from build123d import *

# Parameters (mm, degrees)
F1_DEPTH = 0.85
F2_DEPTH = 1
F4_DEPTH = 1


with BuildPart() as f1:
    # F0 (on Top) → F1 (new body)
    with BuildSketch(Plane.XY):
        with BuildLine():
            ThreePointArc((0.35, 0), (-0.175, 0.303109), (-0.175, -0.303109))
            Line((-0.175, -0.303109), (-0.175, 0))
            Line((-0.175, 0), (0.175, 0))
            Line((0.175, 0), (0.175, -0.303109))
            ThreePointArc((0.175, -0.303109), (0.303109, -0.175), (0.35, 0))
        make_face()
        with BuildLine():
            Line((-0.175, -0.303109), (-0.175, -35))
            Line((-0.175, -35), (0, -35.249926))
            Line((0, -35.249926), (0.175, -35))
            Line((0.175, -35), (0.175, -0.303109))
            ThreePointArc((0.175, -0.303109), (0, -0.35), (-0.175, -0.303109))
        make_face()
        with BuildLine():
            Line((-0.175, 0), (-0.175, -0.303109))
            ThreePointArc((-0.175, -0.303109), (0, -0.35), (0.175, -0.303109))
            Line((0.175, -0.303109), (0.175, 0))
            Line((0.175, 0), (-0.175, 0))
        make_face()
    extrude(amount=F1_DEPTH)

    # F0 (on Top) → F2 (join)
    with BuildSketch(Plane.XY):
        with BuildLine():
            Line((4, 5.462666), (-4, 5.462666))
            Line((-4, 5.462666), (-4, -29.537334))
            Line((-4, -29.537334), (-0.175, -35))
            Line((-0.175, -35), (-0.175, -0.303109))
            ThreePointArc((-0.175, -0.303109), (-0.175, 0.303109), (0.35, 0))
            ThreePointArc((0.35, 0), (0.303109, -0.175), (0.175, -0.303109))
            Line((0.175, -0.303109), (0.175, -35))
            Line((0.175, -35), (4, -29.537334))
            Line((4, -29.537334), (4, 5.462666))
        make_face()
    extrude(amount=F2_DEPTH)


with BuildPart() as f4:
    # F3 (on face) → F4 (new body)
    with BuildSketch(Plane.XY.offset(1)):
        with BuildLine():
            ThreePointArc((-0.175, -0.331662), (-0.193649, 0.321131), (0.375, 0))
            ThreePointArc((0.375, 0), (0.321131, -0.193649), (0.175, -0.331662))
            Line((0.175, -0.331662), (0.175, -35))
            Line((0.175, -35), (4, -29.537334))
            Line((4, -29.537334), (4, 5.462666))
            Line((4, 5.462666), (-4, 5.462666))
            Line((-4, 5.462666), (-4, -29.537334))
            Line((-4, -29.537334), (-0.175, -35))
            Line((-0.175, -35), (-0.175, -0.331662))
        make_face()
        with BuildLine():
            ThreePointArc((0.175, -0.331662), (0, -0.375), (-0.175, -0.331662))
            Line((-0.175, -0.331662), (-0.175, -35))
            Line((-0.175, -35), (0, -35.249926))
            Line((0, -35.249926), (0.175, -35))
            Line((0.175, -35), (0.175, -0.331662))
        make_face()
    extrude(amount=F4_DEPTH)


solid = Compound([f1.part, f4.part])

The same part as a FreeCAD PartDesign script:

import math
import FreeCAD as App
import Part
import Sketcher
from FreeCAD import Vector
Q = App.Units.Quantity


def add_polygon(sketch, points):
    """Adds a closed chain of lines whose ends are joined by coincident constraints."""
    first, n = sketch.GeometryCount, len(points)
    for a, b in zip(points, points[1:] + points[:1]):
        sketch.addGeometry(Part.LineSegment(App.Vector(*a, 0), App.Vector(*b, 0)), False)
    for i in range(n):
        sketch.addConstraint(Sketcher.Constraint("Coincident", first + i, 2, first + (i + 1) % n, 1))

doc = App.newDocument("Part")
body = doc.addObject("PartDesign::Body", "Body")

# Sketch on XY plane
sketch1 = body.newObject("Sketcher::SketchObject", "Sketch")
sketch1.AttachmentSupport = (doc.getObject("XY_Plane"), [""])
sketch1.MapMode = "FlatFace"
sketch1.addGeometry([
    Part.ArcOfCircle(Part.Circle(Vector(0, 0, 0), Vector(0, 0, 1), 0.35), math.radians(0), math.radians(240)),  # 0
    Part.LineSegment(Vector(-0.17, -0.3, 0), Vector(-0.17, -35, 0)),  # 1
    Part.LineSegment(Vector(-0.17, -35, 0), Vector(0, -35.25, 0)),  # 2
    Part.LineSegment(Vector(0, -35.25, 0), Vector(0.17, -35, 0)),  # 3
    Part.LineSegment(Vector(0.17, -35, 0), Vector(0.17, -0.3, 0)),  # 4
    Part.ArcOfCircle(Part.Circle(Vector(0, 0, 0), Vector(0, 0, 1), 0.35), math.radians(-60), math.radians(0)),  # 5
], False)
sketch1.addConstraint([
    Sketcher.Constraint("Coincident", 0, 2, 1, 1),
    Sketcher.Constraint("Coincident", 1, 2, 2, 1),
    Sketcher.Constraint("Coincident", 2, 2, 3, 1),
    Sketcher.Constraint("Coincident", 3, 2, 4, 1),
    Sketcher.Constraint("Coincident", 4, 2, 5, 1),
    Sketcher.Constraint("Tangent", 5, 2, 0, 1),
    Sketcher.Constraint("Vertical", 1),
    Sketcher.Constraint("Vertical", 4),
    Sketcher.Constraint("Coincident", 0, 3, -1, 1),
    Sketcher.Constraint("Equal", 0, 5),
    Sketcher.Constraint("Symmetric", 1, 2, 3, 2, -2),
    Sketcher.Constraint("PointOnObject", 2, 2, -2),
    Sketcher.Constraint("PointOnObject", 5, 2, -1),
    Sketcher.Constraint("Angle", 2, Q("-55.000011 deg")),
    Sketcher.Constraint("Radius", 0, 0.35),
    Sketcher.Constraint("DistanceY", 1, 2, -1, 1, 35.0),
    Sketcher.Constraint("DistanceX", 1, 2, 3, 2, 0.35),
])
pad1 = body.newObject("PartDesign::Pad", "Pad")
pad1.Profile = sketch1
pad1.Length = 0.85

# Sketch on XY plane
sketch2 = body.newObject("Sketcher::SketchObject", "Sketch001")
sketch2.AttachmentSupport = (doc.getObject("XY_Plane"), [""])
sketch2.MapMode = "FlatFace"
sketch2.addGeometry([
    Part.LineSegment(Vector(4, 5.46, 0), Vector(-4, 5.46, 0)),  # 0
    Part.LineSegment(Vector(-4, 5.46, 0), Vector(-4, -29.54, 0)),  # 1
    Part.LineSegment(Vector(-4, -29.54, 0), Vector(-0.17, -35, 0)),  # 2
    Part.LineSegment(Vector(-0.17, -35, 0), Vector(-0.17, -0.3, 0)),  # 3
    Part.ArcOfCircle(Part.Circle(Vector(0, 0, 0), Vector(0, 0, 1), 0.35), math.radians(0), math.radians(240)),  # 4
    Part.ArcOfCircle(Part.Circle(Vector(0, 0, 0), Vector(0, 0, 1), 0.35), math.radians(-60), math.radians(0)),  # 5
    Part.LineSegment(Vector(0.17, -0.3, 0), Vector(0.17, -35, 0)),  # 6
    Part.LineSegment(Vector(0.17, -35, 0), Vector(4, -29.54, 0)),  # 7
    Part.LineSegment(Vector(4, -29.54, 0), Vector(4, 5.46, 0)),  # 8
], False)
sketch2.addConstraint([
    Sketcher.Constraint("Coincident", 0, 2, 1, 1),
    Sketcher.Constraint("Coincident", 1, 2, 2, 1),
    Sketcher.Constraint("Coincident", 2, 2, 3, 1),
    Sketcher.Constraint("Coincident", 3, 2, 4, 2),
    Sketcher.Constraint("Tangent", 4, 1, 5, 2),
    Sketcher.Constraint("Coincident", 5, 1, 6, 1),
    Sketcher.Constraint("Coincident", 6, 2, 7, 1),
    Sketcher.Constraint("Coincident", 7, 2, 8, 1),
    Sketcher.Constraint("Coincident", 8, 2, 0, 1),
    Sketcher.Constraint("Horizontal", 0),
    Sketcher.Constraint("Vertical", 1),
    Sketcher.Constraint("Vertical", 3),
    Sketcher.Constraint("Vertical", 6),
    Sketcher.Constraint("Vertical", 8),
    Sketcher.Constraint("Coincident", 4, 3, -1, 1),
    Sketcher.Constraint("Equal", 4, 5),
    Sketcher.Constraint("Symmetric", 2, 2, 6, 2, -2),
    Sketcher.Constraint("Symmetric", 1, 2, 7, 2, -2),
    Sketcher.Constraint("PointOnObject", 4, 1, -1),
    Sketcher.Constraint("DistanceX", 0, 2, 0, 1, 8.0),
    Sketcher.Constraint("DistanceY", 1, 2, 1, 1, 35.0),
    Sketcher.Constraint("Angle", 2, Q("-54.999999 deg")),
    Sketcher.Constraint("Radius", 4, 0.35),
    Sketcher.Constraint("DistanceY", 2, 2, -1, 1, 35.0),
    Sketcher.Constraint("DistanceX", 3, 2, 5, 1, 0.35),
])
pad2 = body.newObject("PartDesign::Pad", "Pad001")
pad2.Profile = sketch2
pad2.Length = 1
body2 = doc.addObject("PartDesign::Body", "Body001")

# Sketch on XY plane
sketch3 = body2.newObject("Sketcher::SketchObject", "Sketch002")
sketch3.AttachmentSupport = (doc.getObject("XY_Plane001"), [""])
sketch3.MapMode = "FlatFace"
sketch3.AttachmentOffset = App.Placement(Vector(0, 0, 1), App.Rotation())
add_polygon(sketch3, [(0.17, -35), (4, -29.54), (4, 5.46), (-4, 5.46), (-4, -29.54), (-0.17, -35), (0, -35.25)])  # lines 0-6
sketch3.addGeometry(Part.ArcOfCircle(Part.Circle(Vector(0, 0, 0), Vector(0, 0, 1), 0.37), math.radians(0), math.radians(242)), False)  # 7
sketch3.addGeometry(Part.ArcOfCircle(Part.Circle(Vector(0, 0, 0), Vector(0, 0, 1), 0.37), math.radians(-62), math.radians(0)), False)  # 8
sketch3.addGeometry(Part.ArcOfCircle(Part.Circle(Vector(0, 0, 0), Vector(0, 0, 1), 0.37), math.radians(-118), math.radians(-62)), False)  # 9
sketch3.addConstraint([
    Sketcher.Constraint("Coincident", 7, 1, 8, 2),
    Sketcher.Constraint("Coincident", 8, 1, 9, 2),
    Sketcher.Constraint("Coincident", 9, 1, 7, 2),
    Sketcher.Constraint("Vertical", 1),
    Sketcher.Constraint("Horizontal", 2),
    Sketcher.Constraint("Vertical", 3),
    Sketcher.Constraint("Coincident", 7, 3, -1, 1),
    Sketcher.Constraint("Coincident", 8, 3, -1, 1),
    Sketcher.Constraint("Equal", 8, 9),
    Sketcher.Constraint("Symmetric", 0, 2, 3, 2, -2),
    Sketcher.Constraint("Symmetric", 4, 2, 6, 2, -2),
    Sketcher.Constraint("PointOnObject", 5, 2, -2),
    Sketcher.Constraint("PointOnObject", 7, 1, -1),
    Sketcher.Constraint("Parallel", 4, 5),
    Sketcher.Constraint("Horizontal", 8, 1, 9, 1),
    Sketcher.Constraint("Vertical", 6, 2, 8, 1),
    Sketcher.Constraint("DistanceX", 2, 2, 2, 1, 8.0),
    Sketcher.Constraint("DistanceY", 1, 1, 1, 2, 35.0),
    Sketcher.Constraint("Angle", 0, Q("54.999999 deg")),
    Sketcher.Constraint("DistanceY", 4, 2, -1, 1, 35.0),
    Sketcher.Constraint("Radius", 7, 0.375),
    Sketcher.Constraint("DistanceX", 8, 1, 7, 1, 0.2),
])
pad3 = body2.newObject("PartDesign::Pad", "Pad002")
pad3.Profile = sketch3
pad3.Length = 1

doc.recompute()
